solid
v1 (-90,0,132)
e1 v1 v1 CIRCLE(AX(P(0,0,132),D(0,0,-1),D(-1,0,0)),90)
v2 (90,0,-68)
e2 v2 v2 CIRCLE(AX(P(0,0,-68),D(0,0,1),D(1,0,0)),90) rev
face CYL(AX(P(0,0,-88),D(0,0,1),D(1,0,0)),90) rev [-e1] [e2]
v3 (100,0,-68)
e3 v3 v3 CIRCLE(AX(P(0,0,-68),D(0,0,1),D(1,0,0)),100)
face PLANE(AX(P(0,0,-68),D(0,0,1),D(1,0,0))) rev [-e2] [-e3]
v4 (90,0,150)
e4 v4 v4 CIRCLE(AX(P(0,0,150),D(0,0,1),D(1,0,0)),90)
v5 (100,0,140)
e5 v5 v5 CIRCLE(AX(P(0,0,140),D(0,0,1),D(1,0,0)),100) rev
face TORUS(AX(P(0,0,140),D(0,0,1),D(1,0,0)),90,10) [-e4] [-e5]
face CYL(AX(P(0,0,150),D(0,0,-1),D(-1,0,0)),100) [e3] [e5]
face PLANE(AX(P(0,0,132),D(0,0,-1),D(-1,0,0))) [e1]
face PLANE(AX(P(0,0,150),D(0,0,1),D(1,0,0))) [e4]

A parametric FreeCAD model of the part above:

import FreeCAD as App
import Part
import Sketcher


def edges_at(feature, points):
    """Names of the edges that pass closest to the given points."""
    edges = feature.Shape.Edges
    near = lambda p: min(range(len(edges)), key=lambda i: edges[i].distToShape(Part.Vertex(*p))[0])
    return sorted({f"Edge{near(p) + 1}" for p in points})

doc = App.newDocument("Part")
body = doc.addObject("PartDesign::Body", "Body")

# Sketch on XY plane
sketch1 = body.newObject("Sketcher::SketchObject", "Sketch")
sketch1.AttachmentSupport = (doc.getObject("XY_Plane"), [""])
sketch1.MapMode = "FlatFace"
sketch1.addGeometry(Part.Circle(App.Vector(0, 0, 0), App.Vector(0, 0, 1), 100), False)
sketch1.addConstraint([
    Sketcher.Constraint("Coincident", 0, 3, -1, 1),
    Sketcher.Constraint("Diameter", 0, 200.0),
])
pad1 = body.newObject("PartDesign::Pad", "Pad")
pad1.Profile = sketch1
pad1.Type = "TwoLengths"
pad1.Length = 150
pad1.Length2 = 68

# Sketch on XY plane
sketch2 = body.newObject("Sketcher::SketchObject", "Sketch001")
sketch2.AttachmentSupport = (doc.getObject("XY_Plane"), [""])
sketch2.MapMode = "FlatFace"
sketch2.AttachmentOffset = App.Placement(App.Vector(0, 0, -68), App.Rotation())
sketch2.addGeometry(Part.Circle(App.Vector(0, 0, 0), App.Vector(0, 0, 1), 90), False)
sketch2.addConstraint([
    Sketcher.Constraint("Coincident", 0, 3, -1, 1),
    Sketcher.Constraint("Diameter", 0, 180.0),
])
pocket1 = body.newObject("PartDesign::Pocket", "Pocket")
pocket1.Profile = sketch2
pocket1.Type = "TwoLengths"
pocket1.Length = 20
pocket1.Length2 = 200
doc.recompute()

fillet = body.newObject("PartDesign::Fillet", "Fillet")
fillet.Base = (pocket1, edges_at(pocket1, [(-100, 0, 150)]))
fillet.Radius = 10

doc.recompute()
